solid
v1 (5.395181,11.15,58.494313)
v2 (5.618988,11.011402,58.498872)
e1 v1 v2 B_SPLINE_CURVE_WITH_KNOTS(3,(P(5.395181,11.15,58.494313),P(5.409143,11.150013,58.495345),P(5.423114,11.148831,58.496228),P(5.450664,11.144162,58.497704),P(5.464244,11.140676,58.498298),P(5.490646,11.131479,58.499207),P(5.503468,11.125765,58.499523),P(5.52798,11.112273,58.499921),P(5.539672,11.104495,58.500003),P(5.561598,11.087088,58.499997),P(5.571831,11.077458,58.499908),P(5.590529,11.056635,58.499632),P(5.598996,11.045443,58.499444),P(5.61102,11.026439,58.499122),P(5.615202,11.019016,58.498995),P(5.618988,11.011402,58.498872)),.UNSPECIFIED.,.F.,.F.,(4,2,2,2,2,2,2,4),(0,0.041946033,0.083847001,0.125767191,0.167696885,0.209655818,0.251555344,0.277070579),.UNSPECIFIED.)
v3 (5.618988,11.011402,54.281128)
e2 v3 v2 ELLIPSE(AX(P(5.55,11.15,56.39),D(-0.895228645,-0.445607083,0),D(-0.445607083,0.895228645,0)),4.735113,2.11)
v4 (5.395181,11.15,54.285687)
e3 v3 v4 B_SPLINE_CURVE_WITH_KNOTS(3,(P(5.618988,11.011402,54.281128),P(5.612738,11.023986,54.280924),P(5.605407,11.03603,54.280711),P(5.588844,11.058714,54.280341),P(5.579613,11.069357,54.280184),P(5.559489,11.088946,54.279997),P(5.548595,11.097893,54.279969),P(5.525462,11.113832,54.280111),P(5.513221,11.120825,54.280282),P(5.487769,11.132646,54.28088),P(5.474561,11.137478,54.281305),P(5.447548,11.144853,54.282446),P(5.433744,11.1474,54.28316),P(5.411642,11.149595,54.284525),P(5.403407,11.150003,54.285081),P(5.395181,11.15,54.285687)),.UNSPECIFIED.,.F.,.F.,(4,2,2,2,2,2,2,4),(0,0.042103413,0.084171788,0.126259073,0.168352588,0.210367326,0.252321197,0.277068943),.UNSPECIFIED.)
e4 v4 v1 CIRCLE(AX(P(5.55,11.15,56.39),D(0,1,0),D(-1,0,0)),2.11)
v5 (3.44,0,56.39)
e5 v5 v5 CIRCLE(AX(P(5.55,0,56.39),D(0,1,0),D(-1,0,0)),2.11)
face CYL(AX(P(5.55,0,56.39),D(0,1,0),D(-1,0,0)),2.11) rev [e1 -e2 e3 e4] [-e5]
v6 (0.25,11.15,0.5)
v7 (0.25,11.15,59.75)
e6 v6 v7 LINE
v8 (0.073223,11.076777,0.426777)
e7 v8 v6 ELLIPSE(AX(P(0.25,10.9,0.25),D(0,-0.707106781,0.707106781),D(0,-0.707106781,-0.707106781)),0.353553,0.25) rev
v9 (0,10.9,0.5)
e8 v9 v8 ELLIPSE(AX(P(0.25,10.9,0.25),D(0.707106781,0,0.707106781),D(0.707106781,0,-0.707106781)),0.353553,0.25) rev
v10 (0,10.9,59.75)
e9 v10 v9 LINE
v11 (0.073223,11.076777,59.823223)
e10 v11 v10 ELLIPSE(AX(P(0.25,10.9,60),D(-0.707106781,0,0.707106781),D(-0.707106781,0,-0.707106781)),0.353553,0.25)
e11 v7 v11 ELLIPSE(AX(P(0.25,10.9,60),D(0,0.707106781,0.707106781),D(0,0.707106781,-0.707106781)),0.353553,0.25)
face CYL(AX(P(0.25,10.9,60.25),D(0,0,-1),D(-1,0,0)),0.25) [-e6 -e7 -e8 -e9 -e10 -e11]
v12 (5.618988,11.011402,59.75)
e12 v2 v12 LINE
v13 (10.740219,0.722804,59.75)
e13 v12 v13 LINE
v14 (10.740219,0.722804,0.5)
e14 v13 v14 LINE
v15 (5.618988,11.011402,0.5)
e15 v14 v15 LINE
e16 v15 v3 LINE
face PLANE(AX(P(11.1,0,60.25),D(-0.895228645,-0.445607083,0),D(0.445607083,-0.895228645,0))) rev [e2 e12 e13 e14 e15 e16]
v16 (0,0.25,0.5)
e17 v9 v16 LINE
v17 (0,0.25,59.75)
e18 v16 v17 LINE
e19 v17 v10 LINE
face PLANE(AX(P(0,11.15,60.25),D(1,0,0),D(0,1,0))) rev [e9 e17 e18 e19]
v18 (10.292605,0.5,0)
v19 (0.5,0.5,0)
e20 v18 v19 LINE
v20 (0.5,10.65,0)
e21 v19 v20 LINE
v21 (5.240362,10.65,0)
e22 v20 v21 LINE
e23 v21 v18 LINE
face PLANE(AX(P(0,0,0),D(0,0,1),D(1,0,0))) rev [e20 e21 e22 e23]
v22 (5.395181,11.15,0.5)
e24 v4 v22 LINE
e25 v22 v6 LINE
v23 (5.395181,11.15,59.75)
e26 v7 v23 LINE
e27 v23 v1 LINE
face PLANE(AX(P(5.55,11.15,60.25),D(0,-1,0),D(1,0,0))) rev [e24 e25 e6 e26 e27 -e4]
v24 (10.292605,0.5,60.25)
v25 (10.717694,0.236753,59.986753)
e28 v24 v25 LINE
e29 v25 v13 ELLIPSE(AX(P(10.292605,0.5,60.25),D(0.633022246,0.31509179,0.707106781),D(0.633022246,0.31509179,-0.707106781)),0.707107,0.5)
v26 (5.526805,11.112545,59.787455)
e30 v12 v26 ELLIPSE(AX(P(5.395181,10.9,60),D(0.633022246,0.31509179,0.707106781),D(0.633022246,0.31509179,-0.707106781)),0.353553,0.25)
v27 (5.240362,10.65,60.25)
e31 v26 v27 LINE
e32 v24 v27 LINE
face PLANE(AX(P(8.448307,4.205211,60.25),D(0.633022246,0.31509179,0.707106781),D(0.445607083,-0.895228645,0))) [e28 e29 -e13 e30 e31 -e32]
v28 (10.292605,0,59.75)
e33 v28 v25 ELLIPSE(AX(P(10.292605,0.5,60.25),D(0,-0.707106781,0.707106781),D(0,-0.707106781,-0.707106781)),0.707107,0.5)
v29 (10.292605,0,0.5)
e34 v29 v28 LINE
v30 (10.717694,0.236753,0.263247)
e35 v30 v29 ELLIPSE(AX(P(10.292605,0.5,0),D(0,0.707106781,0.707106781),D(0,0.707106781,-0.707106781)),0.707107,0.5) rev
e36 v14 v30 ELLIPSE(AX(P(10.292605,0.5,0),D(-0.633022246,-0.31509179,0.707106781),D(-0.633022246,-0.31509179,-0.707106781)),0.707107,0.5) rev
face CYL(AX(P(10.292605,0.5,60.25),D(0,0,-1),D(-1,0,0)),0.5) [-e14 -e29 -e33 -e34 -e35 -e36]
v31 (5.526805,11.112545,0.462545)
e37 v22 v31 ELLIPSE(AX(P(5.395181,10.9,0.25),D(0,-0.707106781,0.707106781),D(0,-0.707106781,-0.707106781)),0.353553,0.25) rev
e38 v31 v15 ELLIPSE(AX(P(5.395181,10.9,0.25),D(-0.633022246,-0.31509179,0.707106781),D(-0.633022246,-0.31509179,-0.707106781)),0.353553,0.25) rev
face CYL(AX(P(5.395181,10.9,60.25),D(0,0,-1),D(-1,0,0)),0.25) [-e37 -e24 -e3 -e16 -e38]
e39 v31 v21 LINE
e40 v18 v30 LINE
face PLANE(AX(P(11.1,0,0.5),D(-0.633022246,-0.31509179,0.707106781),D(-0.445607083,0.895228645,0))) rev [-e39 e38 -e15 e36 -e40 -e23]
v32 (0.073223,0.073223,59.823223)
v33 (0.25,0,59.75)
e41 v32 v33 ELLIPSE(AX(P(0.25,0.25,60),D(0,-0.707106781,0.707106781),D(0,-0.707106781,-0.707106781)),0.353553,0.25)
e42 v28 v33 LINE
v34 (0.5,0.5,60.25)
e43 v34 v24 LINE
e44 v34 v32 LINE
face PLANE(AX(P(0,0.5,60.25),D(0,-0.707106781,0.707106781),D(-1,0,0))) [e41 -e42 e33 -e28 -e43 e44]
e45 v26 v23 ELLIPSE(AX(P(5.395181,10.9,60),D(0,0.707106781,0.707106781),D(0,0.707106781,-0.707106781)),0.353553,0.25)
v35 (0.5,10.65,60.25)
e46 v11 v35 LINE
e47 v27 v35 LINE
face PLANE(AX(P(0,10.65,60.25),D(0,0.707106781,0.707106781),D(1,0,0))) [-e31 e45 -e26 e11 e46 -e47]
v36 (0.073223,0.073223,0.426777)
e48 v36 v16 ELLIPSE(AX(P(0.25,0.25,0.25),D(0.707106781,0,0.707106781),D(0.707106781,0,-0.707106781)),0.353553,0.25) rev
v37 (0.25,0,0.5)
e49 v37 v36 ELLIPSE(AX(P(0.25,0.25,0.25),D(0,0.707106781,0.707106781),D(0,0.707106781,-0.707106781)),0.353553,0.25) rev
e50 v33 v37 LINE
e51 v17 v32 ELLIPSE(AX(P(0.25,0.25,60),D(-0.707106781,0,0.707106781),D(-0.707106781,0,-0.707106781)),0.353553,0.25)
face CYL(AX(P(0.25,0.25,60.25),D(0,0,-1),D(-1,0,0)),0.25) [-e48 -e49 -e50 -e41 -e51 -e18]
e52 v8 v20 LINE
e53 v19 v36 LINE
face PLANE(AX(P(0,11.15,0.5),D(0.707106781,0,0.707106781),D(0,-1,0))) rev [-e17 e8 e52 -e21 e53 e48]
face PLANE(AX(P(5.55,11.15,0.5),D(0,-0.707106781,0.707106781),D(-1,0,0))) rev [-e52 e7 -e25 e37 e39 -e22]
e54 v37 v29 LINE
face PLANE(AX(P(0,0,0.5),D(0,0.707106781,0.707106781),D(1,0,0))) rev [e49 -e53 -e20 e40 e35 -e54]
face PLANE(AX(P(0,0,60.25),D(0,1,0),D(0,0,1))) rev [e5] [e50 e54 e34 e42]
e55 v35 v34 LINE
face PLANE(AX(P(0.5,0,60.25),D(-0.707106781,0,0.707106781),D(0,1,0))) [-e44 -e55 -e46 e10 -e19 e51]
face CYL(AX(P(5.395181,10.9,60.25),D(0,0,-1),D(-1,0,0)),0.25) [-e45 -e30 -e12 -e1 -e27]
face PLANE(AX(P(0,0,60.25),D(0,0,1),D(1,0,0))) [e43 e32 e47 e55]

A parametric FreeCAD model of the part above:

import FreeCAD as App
import Part
import Sketcher


def edges_at(feature, points):
    """Names of the edges that pass closest to the given points."""
    edges = feature.Shape.Edges
    near = lambda p: min(range(len(edges)), key=lambda i: edges[i].distToShape(Part.Vertex(*p))[0])
    return sorted({f"Edge{near(p) + 1}" for p in points})

doc = App.newDocument("Part")
body = doc.addObject("PartDesign::Body", "Body")

# Sketch on XY plane
sketch1 = body.newObject("Sketcher::SketchObject", "Sketch")
sketch1.AttachmentSupport = (doc.getObject("XY_Plane"), [""])
sketch1.MapMode = "FlatFace"
sketch1.addGeometry([
    Part.LineSegment(App.Vector(0, 11, 0), App.Vector(0, 0, 0)),
    Part.LineSegment(App.Vector(0, 0, 0), App.Vector(11, 0, 0)),
    Part.LineSegment(App.Vector(11, 0, 0), App.Vector(6, 11, 0)),
    Part.LineSegment(App.Vector(6, 11, 0), App.Vector(0, 11, 0)),
], False)
sketch1.addConstraint([
    Sketcher.Constraint("Coincident", 0, 2, 1, 1),
    Sketcher.Constraint("Coincident", 1, 2, 2, 1),
    Sketcher.Constraint("Coincident", 2, 2, 3, 1),
    Sketcher.Constraint("Coincident", 3, 2, 0, 1),
    Sketcher.Constraint("Vertical", 0),
    Sketcher.Constraint("Horizontal", 1),
    Sketcher.Constraint("Horizontal", 3),
    Sketcher.Constraint("Coincident", 0, 2, -1, 1),
    Sketcher.Constraint("DistanceX", 1, 1, 1, 2, 11.1),
    Sketcher.Constraint("DistanceX", 3, 2, 3, 1, 5.55),
    Sketcher.Constraint("DistanceY", 0, 2, 0, 1, 11.15),
])
pad1 = body.newObject("PartDesign::Pad", "Pad")
pad1.Profile = sketch1
pad1.Length = 60.25
doc.recompute()

chamfer = body.newObject("PartDesign::Chamfer", "Chamfer")
chamfer.Base = (pad1, edges_at(pad1, [
    (5.55, 0, 60.25),
    (8.325, 5.575, 60.25),
    (2.775, 11.15, 60.25),
    (8.325, 5.575, 0),
    (5.55, 0, 0),
    (0, 5.575, 0),
    (2.775, 11.15, 0),
    (0, 5.575, 60.25),
]))
chamfer.Size = 0.5
doc.recompute()

fillet = body.newObject("PartDesign::Fillet", "Fillet")
fillet.Base = (chamfer, edges_at(chamfer, [(0, 0, 30.125), (0, 11.15, 30.125), (5.55, 11.15, 30.125)]))
fillet.Radius = 0.25
doc.recompute()

fillet2 = body.newObject("PartDesign::Fillet", "Fillet001")
fillet2.Base = (fillet, edges_at(fillet, [(11.1, 0, 30.125)]))
fillet2.Radius = 0.5

# Sketch on XZ plane
sketch2 = body.newObject("Sketcher::SketchObject", "Sketch001")
sketch2.AttachmentSupport = (doc.getObject("XZ_Plane"), [""])
sketch2.MapMode = "FlatFace"
sketch2.AttachmentOffset = App.Placement(App.Vector(0, 0, -11.15), App.Rotation())
sketch2.addGeometry(Part.Circle(App.Vector(5.5, 56.4, 0), App.Vector(0, 0, 1), 2.1), False)
sketch2.addConstraint([
    Sketcher.Constraint("Diameter", 0, 4.22),
    Sketcher.Constraint("DistanceX", -1, 1, 0, 3, 5.55),
    Sketcher.Constraint("DistanceY", -1, 1, 0, 3, 56.39),
])
pocket1 = body.newObject("PartDesign::Pocket", "Pocket")
pocket1.Profile = sketch2
pocket1.Type = "ThroughAll"
pocket1.Reversed = True

doc.recompute()
